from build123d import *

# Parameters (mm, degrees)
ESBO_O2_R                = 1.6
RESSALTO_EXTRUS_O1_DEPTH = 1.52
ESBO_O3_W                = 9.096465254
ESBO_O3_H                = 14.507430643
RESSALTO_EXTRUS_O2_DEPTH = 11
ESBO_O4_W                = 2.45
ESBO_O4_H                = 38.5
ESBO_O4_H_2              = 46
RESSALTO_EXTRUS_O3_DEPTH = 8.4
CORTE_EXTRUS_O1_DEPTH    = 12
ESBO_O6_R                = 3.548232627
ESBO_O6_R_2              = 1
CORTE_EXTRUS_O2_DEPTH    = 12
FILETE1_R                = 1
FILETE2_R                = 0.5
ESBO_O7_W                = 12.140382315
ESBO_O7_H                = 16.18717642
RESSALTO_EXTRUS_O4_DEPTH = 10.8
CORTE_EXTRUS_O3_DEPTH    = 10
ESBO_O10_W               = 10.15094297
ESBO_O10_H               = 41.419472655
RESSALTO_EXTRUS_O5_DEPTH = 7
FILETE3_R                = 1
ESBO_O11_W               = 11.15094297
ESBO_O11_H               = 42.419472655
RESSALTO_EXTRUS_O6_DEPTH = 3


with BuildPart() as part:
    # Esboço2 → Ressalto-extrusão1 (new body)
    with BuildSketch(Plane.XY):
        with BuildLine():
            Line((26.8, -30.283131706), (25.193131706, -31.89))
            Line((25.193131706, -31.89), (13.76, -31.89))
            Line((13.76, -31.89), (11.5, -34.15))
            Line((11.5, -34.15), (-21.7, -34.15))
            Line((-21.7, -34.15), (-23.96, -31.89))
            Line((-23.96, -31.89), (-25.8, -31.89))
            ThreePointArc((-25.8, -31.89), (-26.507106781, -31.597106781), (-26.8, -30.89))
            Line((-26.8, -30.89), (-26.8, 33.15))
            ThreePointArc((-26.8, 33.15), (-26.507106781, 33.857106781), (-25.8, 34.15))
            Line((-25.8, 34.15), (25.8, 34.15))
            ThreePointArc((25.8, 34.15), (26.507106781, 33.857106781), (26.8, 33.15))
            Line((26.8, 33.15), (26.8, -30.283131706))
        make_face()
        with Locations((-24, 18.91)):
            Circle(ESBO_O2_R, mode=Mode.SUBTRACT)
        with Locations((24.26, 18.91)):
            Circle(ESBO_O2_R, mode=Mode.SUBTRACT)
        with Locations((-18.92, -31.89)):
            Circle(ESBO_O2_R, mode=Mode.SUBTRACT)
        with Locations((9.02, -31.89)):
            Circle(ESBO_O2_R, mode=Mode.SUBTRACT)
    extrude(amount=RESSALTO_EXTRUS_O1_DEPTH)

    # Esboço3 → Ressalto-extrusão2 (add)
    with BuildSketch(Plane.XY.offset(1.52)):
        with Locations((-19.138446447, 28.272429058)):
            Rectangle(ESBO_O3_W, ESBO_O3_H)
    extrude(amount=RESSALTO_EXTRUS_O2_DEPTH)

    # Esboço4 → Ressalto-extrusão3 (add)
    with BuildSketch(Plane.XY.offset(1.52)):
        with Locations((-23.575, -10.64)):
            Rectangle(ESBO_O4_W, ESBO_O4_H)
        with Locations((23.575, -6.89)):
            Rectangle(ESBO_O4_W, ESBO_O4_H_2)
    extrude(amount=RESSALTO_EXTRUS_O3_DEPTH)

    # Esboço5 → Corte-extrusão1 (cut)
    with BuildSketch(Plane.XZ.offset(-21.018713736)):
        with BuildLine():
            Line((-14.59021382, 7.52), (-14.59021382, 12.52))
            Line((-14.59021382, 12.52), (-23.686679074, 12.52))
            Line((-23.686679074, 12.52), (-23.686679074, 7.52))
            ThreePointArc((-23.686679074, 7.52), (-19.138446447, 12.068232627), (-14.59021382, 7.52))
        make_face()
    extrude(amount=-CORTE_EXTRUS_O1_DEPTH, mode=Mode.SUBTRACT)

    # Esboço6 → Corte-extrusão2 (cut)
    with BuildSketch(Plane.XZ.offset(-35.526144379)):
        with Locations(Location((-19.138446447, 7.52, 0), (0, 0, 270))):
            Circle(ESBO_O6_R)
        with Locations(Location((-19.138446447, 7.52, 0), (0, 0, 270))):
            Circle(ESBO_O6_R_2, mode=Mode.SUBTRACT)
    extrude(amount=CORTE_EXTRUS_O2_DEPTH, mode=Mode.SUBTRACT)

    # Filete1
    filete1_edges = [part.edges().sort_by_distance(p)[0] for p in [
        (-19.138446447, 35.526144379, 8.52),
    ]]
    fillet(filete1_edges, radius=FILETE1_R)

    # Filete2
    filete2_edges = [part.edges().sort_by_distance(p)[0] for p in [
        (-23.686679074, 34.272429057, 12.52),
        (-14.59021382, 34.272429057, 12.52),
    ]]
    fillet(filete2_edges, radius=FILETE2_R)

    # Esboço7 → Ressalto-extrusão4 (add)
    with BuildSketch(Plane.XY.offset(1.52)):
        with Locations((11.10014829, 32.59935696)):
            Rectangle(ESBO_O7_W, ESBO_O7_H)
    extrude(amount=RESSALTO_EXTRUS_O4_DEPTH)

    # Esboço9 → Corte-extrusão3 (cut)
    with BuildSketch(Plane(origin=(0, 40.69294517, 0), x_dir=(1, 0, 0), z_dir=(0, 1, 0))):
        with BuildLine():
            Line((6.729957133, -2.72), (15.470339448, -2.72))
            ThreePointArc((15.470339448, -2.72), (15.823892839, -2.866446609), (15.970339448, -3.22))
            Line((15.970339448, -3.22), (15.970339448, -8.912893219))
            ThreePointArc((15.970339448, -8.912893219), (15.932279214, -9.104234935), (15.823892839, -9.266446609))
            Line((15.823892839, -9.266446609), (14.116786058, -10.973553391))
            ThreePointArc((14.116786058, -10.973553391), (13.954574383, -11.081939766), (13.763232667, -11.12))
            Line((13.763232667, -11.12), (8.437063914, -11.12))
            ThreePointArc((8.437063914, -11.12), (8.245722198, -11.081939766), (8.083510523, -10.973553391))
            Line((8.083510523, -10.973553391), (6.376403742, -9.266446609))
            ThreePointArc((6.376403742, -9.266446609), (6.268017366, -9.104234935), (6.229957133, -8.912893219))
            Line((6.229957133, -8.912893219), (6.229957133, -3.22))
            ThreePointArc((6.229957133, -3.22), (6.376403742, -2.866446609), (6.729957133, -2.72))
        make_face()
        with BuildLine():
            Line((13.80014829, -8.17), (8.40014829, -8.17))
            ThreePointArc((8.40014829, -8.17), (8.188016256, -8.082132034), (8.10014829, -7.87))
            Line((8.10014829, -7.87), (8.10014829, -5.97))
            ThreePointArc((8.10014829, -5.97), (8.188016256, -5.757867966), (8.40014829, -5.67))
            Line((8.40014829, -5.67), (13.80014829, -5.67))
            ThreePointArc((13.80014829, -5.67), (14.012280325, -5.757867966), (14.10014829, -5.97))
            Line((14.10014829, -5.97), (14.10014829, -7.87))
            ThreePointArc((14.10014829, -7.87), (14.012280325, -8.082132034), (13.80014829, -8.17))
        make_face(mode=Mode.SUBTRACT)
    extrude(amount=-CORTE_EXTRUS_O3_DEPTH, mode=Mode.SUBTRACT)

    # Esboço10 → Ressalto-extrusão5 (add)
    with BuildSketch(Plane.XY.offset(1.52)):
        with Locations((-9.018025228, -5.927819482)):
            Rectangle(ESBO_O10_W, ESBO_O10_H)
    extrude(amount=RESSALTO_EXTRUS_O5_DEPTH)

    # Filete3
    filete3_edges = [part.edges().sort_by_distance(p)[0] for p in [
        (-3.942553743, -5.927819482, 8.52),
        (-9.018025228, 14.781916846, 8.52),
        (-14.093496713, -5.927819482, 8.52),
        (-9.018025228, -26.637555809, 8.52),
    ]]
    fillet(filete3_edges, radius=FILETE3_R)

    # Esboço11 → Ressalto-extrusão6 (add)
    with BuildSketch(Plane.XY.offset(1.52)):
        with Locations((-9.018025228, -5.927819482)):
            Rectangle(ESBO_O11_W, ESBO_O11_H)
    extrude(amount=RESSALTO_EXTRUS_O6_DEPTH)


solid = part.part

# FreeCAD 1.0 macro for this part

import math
import FreeCAD as App
import Part
import Sketcher

V = App.Vector


def edges_at(feature, points):
    """Names of the edges that pass closest to the given points."""
    edges = feature.Shape.Edges
    near = lambda p: min(range(len(edges)), key=lambda i: edges[i].distToShape(Part.Vertex(*p))[0])
    return sorted({f"Edge{near(p) + 1}" for p in points})


def add_polygon(sketch, points):
    """Adds a closed chain of lines whose ends are joined by coincident constraints."""
    first, n = sketch.GeometryCount, len(points)
    for a, b in zip(points, points[1:] + points[:1]):
        sketch.addGeometry(Part.LineSegment(App.Vector(*a, 0), App.Vector(*b, 0)), False)
    for i in range(n):
        sketch.addConstraint(Sketcher.Constraint("Coincident", first + i, 2, first + (i + 1) % n, 1))

doc = App.newDocument("Part")
body = doc.addObject("PartDesign::Body", "Body")

sketch1 = body.newObject("Sketcher::SketchObject", "Sketch")
sketch1.AttachmentSupport = (doc.getObject("XY_Plane"), [""])
sketch1.MapMode = "FlatFace"
sketch1.addGeometry([
    Part.LineSegment(V(25.2, -31.9, 0), V(26.8, -30.3, 0)),
    Part.LineSegment(V(26.8, -30.3, 0), V(26.8, 33.1, 0)),
    Part.ArcOfCircle(Part.Circle(V(25.8, 33.1, 0), V(0, 0, 1), 1), math.radians(0), math.radians(90)),
    Part.LineSegment(V(25.8, 34.1, 0), V(-25.8, 34.1, 0)),
    Part.ArcOfCircle(Part.Circle(V(-25.8, 33.1, 0), V(0, 0, 1), 1), math.radians(90), math.radians(180)),
    Part.LineSegment(V(-26.8, 33.1, 0), V(-26.8, -30.9, 0)),
    Part.ArcOfCircle(Part.Circle(V(-25.8, -30.9, 0), V(0, 0, 1), 1), math.radians(-180), math.radians(-90)),
    Part.LineSegment(V(-25.8, -31.9, 0), V(-24, -31.9, 0)),
    Part.LineSegment(V(-24, -31.9, 0), V(-21.7, -34.1, 0)),
    Part.LineSegment(V(-21.7, -34.1, 0), V(11.5, -34.1, 0)),
    Part.LineSegment(V(11.5, -34.1, 0), V(13.8, -31.9, 0)),
    Part.LineSegment(V(13.8, -31.9, 0), V(25.2, -31.9, 0)),
    Part.Circle(V(9, -31.9, 0), V(0, 0, 1), 1.6),
    Part.Circle(V(-18.9, -31.9, 0), V(0, 0, 1), 1.6),
    Part.Circle(V(24.3, 18.9, 0), V(0, 0, 1), 1.6),
    Part.Circle(V(-24, 18.9, 0), V(0, 0, 1), 1.6),
], False)
sketch1.addConstraint([
    Sketcher.Constraint("Coincident", 0, 2, 1, 1),
    Sketcher.Constraint("Tangent", 1, 2, 2, 1),
    Sketcher.Constraint("Tangent", 2, 2, 3, 1),
    Sketcher.Constraint("Tangent", 3, 2, 4, 1),
    Sketcher.Constraint("Tangent", 4, 2, 5, 1),
    Sketcher.Constraint("Tangent", 5, 2, 6, 1),
    Sketcher.Constraint("Tangent", 6, 2, 7, 1),
    Sketcher.Constraint("Coincident", 7, 2, 8, 1),
    Sketcher.Constraint("Coincident", 8, 2, 9, 1),
    Sketcher.Constraint("Coincident", 9, 2, 10, 1),
    Sketcher.Constraint("Coincident", 10, 2, 11, 1),
    Sketcher.Constraint("Coincident", 11, 2, 0, 1),
    Sketcher.Constraint("Vertical", 1),
    Sketcher.Constraint("Horizontal", 3),
    Sketcher.Constraint("Vertical", 5),
    Sketcher.Constraint("Horizontal", 7),
    Sketcher.Constraint("Horizontal", 9),
    Sketcher.Constraint("Horizontal", 11),
    Sketcher.Constraint("Equal", 2, 4),
    Sketcher.Constraint("Equal", 4, 6),
    Sketcher.Constraint("Equal", 12, 13),
    Sketcher.Constraint("Equal", 13, 14),
    Sketcher.Constraint("Equal", 14, 15),
    Sketcher.Constraint("Perpendicular", 0, 8),
    Sketcher.Constraint("Perpendicular", 8, 10),
    Sketcher.Constraint("Horizontal", 12, 3, 13, 3),
    Sketcher.Constraint("Horizontal", 14, 3, 15, 3),
    Sketcher.Constraint("Horizontal", 13, 3, 6, 2),
    Sketcher.Constraint("Horizontal", 7, 2, 10, 2),
    Sketcher.Constraint("Equal", 8, 10),
    Sketcher.Constraint("Radius", 2, 1.0),
    Sketcher.Constraint("Diameter", 12, 3.2),
    Sketcher.Constraint("DistanceX", 3, 2, 3, 1, 51.6),
    Sketcher.Constraint("DistanceX", 9, 1, 9, 2, 33.2),
    Sketcher.Constraint("DistanceX", 15, 3, -1, 1, 24.0),
    Sketcher.Constraint("DistanceX", 7, 1, 7, 2, 1.84),
    Sketcher.Constraint("DistanceY", 5, 2, 5, 1, 64.04),
    Sketcher.Constraint("DistanceX", -1, 1, 2, 3, 25.8),
    Sketcher.Constraint("DistanceX", 8, 2, -1, 1, 21.7),
    Sketcher.Constraint("DistanceY", 12, 3, 14, 3, 50.8),
    Sketcher.Constraint("DistanceY", -1, 1, 2, 3, 33.15),
    Sketcher.Constraint("DistanceX", -1, 1, 12, 3, 9.02),
    Sketcher.Constraint("DistanceX", 13, 3, -1, 1, 18.92),
    Sketcher.Constraint("DistanceX", -1, 1, 14, 3, 24.26),
    Sketcher.Constraint("DistanceX", 11, 1, 11, 2, 11.433132),
])
pad1 = body.newObject("PartDesign::Pad", "Pad")
pad1.Profile = sketch1
pad1.Length = 1.52

sketch2 = body.newObject("Sketcher::SketchObject", "Sketch001")
sketch2.AttachmentSupport = (doc.getObject("XY_Plane"), [""])
sketch2.MapMode = "FlatFace"
sketch2.AttachmentOffset = App.Placement(V(0, 0, 1.52), App.Rotation())
add_polygon(sketch2, [(-24, 36), (-24, 21), (-15, 21), (-15, 36)])
sketch2.addConstraint([
    Sketcher.Constraint("Vertical", 0),
    Sketcher.Constraint("Horizontal", 1),
    Sketcher.Constraint("Vertical", 2),
    Sketcher.Constraint("Horizontal", 3),
    Sketcher.Constraint("DistanceY", 0, 2, 0, 1, 14.507431),
    Sketcher.Constraint("DistanceX", 1, 1, 1, 2, 9.096465),
    Sketcher.Constraint("DistanceX", 0, 2, -1, 1, 23.686679),
    Sketcher.Constraint("DistanceY", -1, 1, 0, 2, 21.018714),
])
pad2 = body.newObject("PartDesign::Pad", "Pad001")
pad2.Profile = sketch2
pad2.Length = 11

sketch3 = body.newObject("Sketcher::SketchObject", "Sketch002")
sketch3.AttachmentSupport = (doc.getObject("XY_Plane"), [""])
sketch3.MapMode = "FlatFace"
sketch3.AttachmentOffset = App.Placement(V(0, 0, 1.52), App.Rotation())
add_polygon(sketch3, [(-24.8, 8.6), (-24.8, -29.9), (-22.4, -29.9), (-22.4, 8.6)])
add_polygon(sketch3, [(22.4, 16.1), (22.4, -29.9), (24.8, -29.9), (24.8, 16.1)])
sketch3.addConstraint([
    Sketcher.Constraint("Vertical", 0),
    Sketcher.Constraint("Horizontal", 1),
    Sketcher.Constraint("Vertical", 2),
    Sketcher.Constraint("Horizontal", 3),
    Sketcher.Constraint("Vertical", 4),
    Sketcher.Constraint("Horizontal", 5),
    Sketcher.Constraint("Vertical", 6),
    Sketcher.Constraint("Horizontal", 7),
    Sketcher.Constraint("Symmetric", 1, 2, 4, 2, -2),
    Sketcher.Constraint("Equal", 3, 5),
    Sketcher.Constraint("DistanceY", 4, 2, 4, 1, 46.0),
    Sketcher.Constraint("DistanceY", 0, 2, 0, 1, 38.5),
    Sketcher.Constraint("DistanceX", 1, 1, 1, 2, 2.45),
    Sketcher.Constraint("DistanceX", 0, 2, -1, 1, 24.8),
    Sketcher.Constraint("DistanceY", 0, 2, -1, 1, 29.89),
])
pad3 = body.newObject("PartDesign::Pad", "Pad002")
pad3.Profile = sketch3
pad3.Length = 8.4

sketch4 = body.newObject("Sketcher::SketchObject", "Sketch003")
sketch4.AttachmentSupport = (doc.getObject("XZ_Plane"), [""])
sketch4.MapMode = "FlatFace"
sketch4.AttachmentOffset = App.Placement(V(0, 0, -21.018714), App.Rotation())
sketch4.addGeometry([
    Part.LineSegment(V(-14.6, 7.5, 0), V(-14.6, 12.5, 0)),
    Part.LineSegment(V(-14.6, 12.5, 0), V(-23.7, 12.5, 0)),
    Part.LineSegment(V(-23.7, 12.5, 0), V(-23.7, 7.5, 0)),
    Part.ArcOfCircle(Part.Circle(V(-19.1, 7.5, 0), V(0, 0, 1), 4.5), math.radians(0), math.radians(180)),
], False)
sketch4.addConstraint([
    Sketcher.Constraint("Coincident", 0, 2, 1, 1),
    Sketcher.Constraint("Coincident", 1, 2, 2, 1),
    Sketcher.Constraint("Tangent", 2, 2, 3, 2),
    Sketcher.Constraint("Tangent", 3, 1, 0, 1),
    Sketcher.Constraint("Vertical", 0),
    Sketcher.Constraint("Horizontal", 1),
    Sketcher.Constraint("Vertical", 2),
    Sketcher.Constraint("DistanceY", 0, 1, 0, 2, 5.0),
    Sketcher.Constraint("DistanceY", -1, 1, 3, 3, 7.52),
    Sketcher.Constraint("Radius", 3, 4.548233),
    Sketcher.Constraint("DistanceX", 1, 2, -1, 1, 23.686679),
])
pocket1 = body.newObject("PartDesign::Pocket", "Pocket")
pocket1.Profile = sketch4
pocket1.Length = 12

sketch5 = body.newObject("Sketcher::SketchObject", "Sketch004")
sketch5.AttachmentSupport = (doc.getObject("XZ_Plane"), [""])
sketch5.MapMode = "FlatFace"
sketch5.AttachmentOffset = App.Placement(V(0, 0, -35.526144), App.Rotation())
sketch5.addGeometry([
    Part.Circle(V(-19.1, 7.5, 0), V(0, 0, 1), 3.5),
    Part.Circle(V(-19.1, 7.5, 0), V(0, 0, 1), 1),
], False)
sketch5.addConstraint([
    Sketcher.Constraint("Coincident", 1, 3, 0, 3),
    Sketcher.Constraint("Diameter", 1, 2.0),
    Sketcher.Constraint("DistanceY", -1, 1, 0, 3, 7.52),
    Sketcher.Constraint("Diameter", 0, 7.096465),
    Sketcher.Constraint("DistanceX", 0, 3, -1, 1, 19.138446),
])
pocket2 = body.newObject("PartDesign::Pocket", "Pocket001")
pocket2.Profile = sketch5
pocket2.Length = 12
pocket2.Reversed = True
doc.recompute()

fillet = body.newObject("PartDesign::Fillet", "Fillet")
fillet.Base = (pocket2, edges_at(pocket2, [(-19.138, 35.526, 8.52)]))
fillet.Radius = 1
doc.recompute()

fillet2 = body.newObject("PartDesign::Fillet", "Fillet001")
fillet2.Base = (fillet, edges_at(fillet, [(-23.687, 34.272, 12.52), (-14.59, 34.272, 12.52)]))
fillet2.Radius = 0.5

sketch6 = body.newObject("Sketcher::SketchObject", "Sketch005")
sketch6.AttachmentSupport = (doc.getObject("XY_Plane"), [""])
sketch6.MapMode = "FlatFace"
sketch6.AttachmentOffset = App.Placement(V(0, 0, 1.52), App.Rotation())
add_polygon(sketch6, [(5, 41), (5, 25), (17, 25), (17, 41)])
sketch6.addConstraint([
    Sketcher.Constraint("Vertical", 0),
    Sketcher.Constraint("Horizontal", 1),
    Sketcher.Constraint("Vertical", 2),
    Sketcher.Constraint("Horizontal", 3),
    Sketcher.Constraint("DistanceX", 1, 1, 1, 2, 12.140382),
    Sketcher.Constraint("DistanceY", 0, 2, 0, 1, 16.187176),
    Sketcher.Constraint("DistanceY", -1, 1, 0, 2, 24.505769),
    Sketcher.Constraint("DistanceX", -1, 1, 1, 2, 17.170339),
])
pad4 = body.newObject("PartDesign::Pad", "Pad003")
pad4.Profile = sketch6
pad4.Length = 10.8

sketch7 = body.newObject("Sketcher::SketchObject", "Sketch006")
sketch7.AttachmentSupport = (doc.getObject("XZ_Plane"), [""])
sketch7.MapMode = "FlatFace"
sketch7.AttachmentOffset = App.Placement(V(0, 0, -40.692945), App.Rotation())
sketch7.addGeometry([
    Part.LineSegment(V(15.47, 2.72, 0), V(6.73, 2.72, 0)),
    Part.ArcOfCircle(Part.Circle(V(6.73, 3.22, 0), V(0, 0, 1), 0.5), math.radians(180), math.radians(270)),
    Part.LineSegment(V(6.23, 3.22, 0), V(6.23, 8.91, 0)),
    Part.ArcOfCircle(Part.Circle(V(6.73, 8.91, 0), V(0, 0, 1), 0.5), math.radians(135), math.radians(180)),
    Part.LineSegment(V(6.38, 9.27, 0), V(8.08, 10.97, 0)),
    Part.ArcOfCircle(Part.Circle(V(8.44, 10.62, 0), V(0, 0, 1), 0.5), math.radians(90), math.radians(135)),
    Part.LineSegment(V(8.44, 11.12, 0), V(13.76, 11.12, 0)),
    Part.ArcOfCircle(Part.Circle(V(13.76, 10.62, 0), V(0, 0, 1), 0.5), math.radians(45), math.radians(90)),
    Part.LineSegment(V(14.12, 10.97, 0), V(15.82, 9.27, 0)),
    Part.ArcOfCircle(Part.Circle(V(15.47, 8.91, 0), V(0, 0, 1), 0.5), math.radians(0), math.radians(45)),
    Part.LineSegment(V(15.97, 8.91, 0), V(15.97, 3.22, 0)),
    Part.ArcOfCircle(Part.Circle(V(15.47, 3.22, 0), V(0, 0, 1), 0.5), math.radians(-90), math.radians(0)),
    Part.LineSegment(V(13.8, 8.17, 0), V(8.4, 8.17, 0)),
    Part.ArcOfCircle(Part.Circle(V(8.4, 7.87, 0), V(0, 0, 1), 0.3), math.radians(90), math.radians(180)),
    Part.LineSegment(V(8.1, 7.87, 0), V(8.1, 5.97, 0)),
    Part.ArcOfCircle(Part.Circle(V(8.4, 5.97, 0), V(0, 0, 1), 0.3), math.radians(-180), math.radians(-90)),
    Part.LineSegment(V(8.4, 5.67, 0), V(13.8, 5.67, 0)),
    Part.ArcOfCircle(Part.Circle(V(13.8, 5.97, 0), V(0, 0, 1), 0.3), math.radians(-90), math.radians(0)),
    Part.LineSegment(V(14.1, 5.97, 0), V(14.1, 7.87, 0)),
    Part.ArcOfCircle(Part.Circle(V(13.8, 7.87, 0), V(0, 0, 1), 0.3), math.radians(0), math.radians(90)),
], False)
sketch7.addConstraint([
    Sketcher.Constraint("Tangent", 0, 2, 1, 2),
    Sketcher.Constraint("Tangent", 1, 1, 2, 1),
    Sketcher.Constraint("Tangent", 2, 2, 3, 2),
    Sketcher.Constraint("Tangent", 3, 1, 4, 1),
    Sketcher.Constraint("Tangent", 4, 2, 5, 2),
    Sketcher.Constraint("Tangent", 5, 1, 6, 1),
    Sketcher.Constraint("Tangent", 6, 2, 7, 2),
    Sketcher.Constraint("Tangent", 7, 1, 8, 1),
    Sketcher.Constraint("Tangent", 8, 2, 9, 2),
    Sketcher.Constraint("Tangent", 9, 1, 10, 1),
    Sketcher.Constraint("Tangent", 10, 2, 11, 2),
    Sketcher.Constraint("Tangent", 11, 1, 0, 1),
    Sketcher.Constraint("Tangent", 12, 2, 13, 1),
    Sketcher.Constraint("Tangent", 13, 2, 14, 1),
    Sketcher.Constraint("Tangent", 14, 2, 15, 1),
    Sketcher.Constraint("Tangent", 15, 2, 16, 1),
    Sketcher.Constraint("Tangent", 16, 2, 17, 1),
    Sketcher.Constraint("Tangent", 17, 2, 18, 1),
    Sketcher.Constraint("Tangent", 18, 2, 19, 1),
    Sketcher.Constraint("Tangent", 19, 2, 12, 1),
    Sketcher.Constraint("Horizontal", 0),
    Sketcher.Constraint("Vertical", 2),
    Sketcher.Constraint("Horizontal", 6),
    Sketcher.Constraint("Vertical", 10),
    Sketcher.Constraint("Horizontal", 12),
    Sketcher.Constraint("Vertical", 14),
    Sketcher.Constraint("Horizontal", 16),
    Sketcher.Constraint("Vertical", 18),
    Sketcher.Constraint("Equal", 1, 3),
    Sketcher.Constraint("Equal", 3, 5),
    Sketcher.Constraint("Equal", 5, 7),
    Sketcher.Constraint("Equal", 7, 9),
    Sketcher.Constraint("Equal", 9, 11),
    Sketcher.Constraint("Equal", 13, 15),
    Sketcher.Constraint("Equal", 15, 17),
    Sketcher.Constraint("Equal", 17, 19),
    Sketcher.Constraint("Perpendicular", 4, 8),
    Sketcher.Constraint("Horizontal", 3, 3, 9, 3),
    Sketcher.Constraint("Horizontal", 4, 2, 7, 1),
    Sketcher.Constraint("Radius", 1, 0.5),
    Sketcher.Constraint("Radius", 13, 0.3),
    Sketcher.Constraint("DistanceX", 12, 2, 12, 1, 5.4),
    Sketcher.Constraint("DistanceY", 14, 2, 14, 1, 1.9),
    Sketcher.Constraint("DistanceY", 1, 3, 5, 3, 7.4),
    Sketcher.Constraint("DistanceY", -1, 1, 1, 3, 3.22),
    Sketcher.Constraint("DistanceY", -1, 1, 13, 3, 7.87),
    Sketcher.Constraint("DistanceX", 6, 1, 6, 2, 5.326169),
    Sketcher.Constraint("DistanceX", 0, 2, 0, 1, 8.740382),
    Sketcher.Constraint("DistanceX", -1, 1, 9, 3, 15.470339),
    Sketcher.Constraint("DistanceX", -1, 1, 13, 3, 8.400148),
])
pocket3 = body.newObject("PartDesign::Pocket", "Pocket002")
pocket3.Profile = sketch7
pocket3.Length = 10
pocket3.Reversed = True

sketch8 = body.newObject("Sketcher::SketchObject", "Sketch007")
sketch8.AttachmentSupport = (doc.getObject("XY_Plane"), [""])
sketch8.MapMode = "FlatFace"
sketch8.AttachmentOffset = App.Placement(V(0, 0, 1.52), App.Rotation())
add_polygon(sketch8, [(-14, 15), (-14, -27), (-4, -27), (-4, 15)])
sketch8.addConstraint([
    Sketcher.Constraint("Vertical", 0),
    Sketcher.Constraint("Horizontal", 1),
    Sketcher.Constraint("Vertical", 2),
    Sketcher.Constraint("Horizontal", 3),
    Sketcher.Constraint("DistanceX", 1, 1, 1, 2, 10.150943),
    Sketcher.Constraint("DistanceY", 0, 2, 0, 1, 41.419473),
    Sketcher.Constraint("DistanceX", 0, 2, -1, 1, 14.093497),
    Sketcher.Constraint("DistanceY", 0, 2, -1, 1, 26.637556),
])
pad5 = body.newObject("PartDesign::Pad", "Pad004")
pad5.Profile = sketch8
pad5.Length = 7
doc.recompute()

fillet3 = body.newObject("PartDesign::Fillet", "Fillet002")
fillet3.Base = (pad5, edges_at(pad5, [
    (-3.943, -5.928, 8.52),
    (-9.018, 14.782, 8.52),
    (-14.093, -5.928, 8.52),
    (-9.018, -26.638, 8.52),
]))
fillet3.Radius = 1

sketch9 = body.newObject("Sketcher::SketchObject", "Sketch008")
sketch9.AttachmentSupport = (doc.getObject("XY_Plane"), [""])
sketch9.MapMode = "FlatFace"
sketch9.AttachmentOffset = App.Placement(V(0, 0, 1.52), App.Rotation())
add_polygon(sketch9, [(-15, 15), (-15, -27), (-3, -27), (-3, 15)])
sketch9.addConstraint([
    Sketcher.Constraint("Vertical", 0),
    Sketcher.Constraint("Horizontal", 1),
    Sketcher.Constraint("Vertical", 2),
    Sketcher.Constraint("Horizontal", 3),
    Sketcher.Constraint("DistanceX", 1, 1, 1, 2, 11.150943),
    Sketcher.Constraint("DistanceY", 0, 2, 0, 1, 42.419473),
    Sketcher.Constraint("DistanceX", 0, 2, -1, 1, 14.593497),
    Sketcher.Constraint("DistanceY", 0, 2, -1, 1, 27.137556),
])
pad6 = body.newObject("PartDesign::Pad", "Pad005")
pad6.Profile = sketch9
pad6.Length = 3

doc.recompute()
